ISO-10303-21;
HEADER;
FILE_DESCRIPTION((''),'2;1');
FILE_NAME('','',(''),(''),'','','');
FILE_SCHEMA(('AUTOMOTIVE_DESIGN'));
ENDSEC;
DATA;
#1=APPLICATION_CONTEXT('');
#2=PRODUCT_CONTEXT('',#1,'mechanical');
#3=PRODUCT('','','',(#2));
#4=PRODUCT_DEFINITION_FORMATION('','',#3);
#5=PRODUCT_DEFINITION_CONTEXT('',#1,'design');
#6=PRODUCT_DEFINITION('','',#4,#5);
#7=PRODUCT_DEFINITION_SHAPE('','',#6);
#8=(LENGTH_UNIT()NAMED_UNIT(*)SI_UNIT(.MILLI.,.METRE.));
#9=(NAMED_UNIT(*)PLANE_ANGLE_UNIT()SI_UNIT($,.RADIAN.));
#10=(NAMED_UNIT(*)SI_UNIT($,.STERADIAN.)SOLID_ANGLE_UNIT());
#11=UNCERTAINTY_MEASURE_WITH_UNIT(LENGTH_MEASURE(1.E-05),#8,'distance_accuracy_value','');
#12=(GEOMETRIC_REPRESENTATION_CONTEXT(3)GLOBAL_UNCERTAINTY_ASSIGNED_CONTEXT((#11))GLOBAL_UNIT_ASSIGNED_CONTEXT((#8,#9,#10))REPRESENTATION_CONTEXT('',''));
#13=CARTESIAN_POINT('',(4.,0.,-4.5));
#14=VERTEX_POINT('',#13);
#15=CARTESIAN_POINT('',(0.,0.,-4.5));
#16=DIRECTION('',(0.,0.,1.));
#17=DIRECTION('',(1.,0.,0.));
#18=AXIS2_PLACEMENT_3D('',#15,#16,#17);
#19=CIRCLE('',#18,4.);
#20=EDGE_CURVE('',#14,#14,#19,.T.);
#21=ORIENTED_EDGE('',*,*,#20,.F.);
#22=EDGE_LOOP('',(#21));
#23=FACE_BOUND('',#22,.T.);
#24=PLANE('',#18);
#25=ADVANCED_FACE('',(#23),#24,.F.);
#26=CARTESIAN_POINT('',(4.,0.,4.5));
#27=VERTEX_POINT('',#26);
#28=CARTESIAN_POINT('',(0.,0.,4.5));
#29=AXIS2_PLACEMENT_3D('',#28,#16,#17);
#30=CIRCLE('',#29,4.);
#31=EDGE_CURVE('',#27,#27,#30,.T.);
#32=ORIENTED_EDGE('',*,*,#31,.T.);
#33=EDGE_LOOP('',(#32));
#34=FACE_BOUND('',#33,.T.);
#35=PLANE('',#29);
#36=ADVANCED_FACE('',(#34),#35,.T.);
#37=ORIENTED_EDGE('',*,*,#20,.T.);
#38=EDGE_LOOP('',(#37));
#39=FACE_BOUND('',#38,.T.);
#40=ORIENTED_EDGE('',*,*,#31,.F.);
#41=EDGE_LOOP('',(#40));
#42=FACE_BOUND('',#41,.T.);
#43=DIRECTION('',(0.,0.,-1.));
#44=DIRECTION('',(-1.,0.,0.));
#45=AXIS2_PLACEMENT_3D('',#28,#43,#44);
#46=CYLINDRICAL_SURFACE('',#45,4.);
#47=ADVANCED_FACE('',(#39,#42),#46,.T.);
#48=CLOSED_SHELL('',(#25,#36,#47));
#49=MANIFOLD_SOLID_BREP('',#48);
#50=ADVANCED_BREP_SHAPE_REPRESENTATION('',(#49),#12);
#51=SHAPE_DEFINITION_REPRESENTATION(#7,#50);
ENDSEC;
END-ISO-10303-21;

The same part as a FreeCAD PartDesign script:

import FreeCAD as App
import Part
import Sketcher

doc = App.newDocument("Part")
body = doc.addObject("PartDesign::Body", "Body")

# Sketch on XY plane
sketch1 = body.newObject("Sketcher::SketchObject", "Sketch")
sketch1.AttachmentSupport = (doc.getObject("XY_Plane"), [""])
sketch1.MapMode = "FlatFace"
sketch1.addGeometry(Part.Circle(App.Vector(0, 0, 0), App.Vector(0, 0, 1), 4), False)
sketch1.addConstraint(Sketcher.Constraint("Coincident", 0, 3, -1, 1))
sketch1.addConstraint(Sketcher.Constraint("Diameter", 0, 8.0))
pad1 = body.newObject("PartDesign::Pad", "Pad")
pad1.Profile = sketch1
pad1.Length = 9
pad1.Midplane = True

doc.recompute()
